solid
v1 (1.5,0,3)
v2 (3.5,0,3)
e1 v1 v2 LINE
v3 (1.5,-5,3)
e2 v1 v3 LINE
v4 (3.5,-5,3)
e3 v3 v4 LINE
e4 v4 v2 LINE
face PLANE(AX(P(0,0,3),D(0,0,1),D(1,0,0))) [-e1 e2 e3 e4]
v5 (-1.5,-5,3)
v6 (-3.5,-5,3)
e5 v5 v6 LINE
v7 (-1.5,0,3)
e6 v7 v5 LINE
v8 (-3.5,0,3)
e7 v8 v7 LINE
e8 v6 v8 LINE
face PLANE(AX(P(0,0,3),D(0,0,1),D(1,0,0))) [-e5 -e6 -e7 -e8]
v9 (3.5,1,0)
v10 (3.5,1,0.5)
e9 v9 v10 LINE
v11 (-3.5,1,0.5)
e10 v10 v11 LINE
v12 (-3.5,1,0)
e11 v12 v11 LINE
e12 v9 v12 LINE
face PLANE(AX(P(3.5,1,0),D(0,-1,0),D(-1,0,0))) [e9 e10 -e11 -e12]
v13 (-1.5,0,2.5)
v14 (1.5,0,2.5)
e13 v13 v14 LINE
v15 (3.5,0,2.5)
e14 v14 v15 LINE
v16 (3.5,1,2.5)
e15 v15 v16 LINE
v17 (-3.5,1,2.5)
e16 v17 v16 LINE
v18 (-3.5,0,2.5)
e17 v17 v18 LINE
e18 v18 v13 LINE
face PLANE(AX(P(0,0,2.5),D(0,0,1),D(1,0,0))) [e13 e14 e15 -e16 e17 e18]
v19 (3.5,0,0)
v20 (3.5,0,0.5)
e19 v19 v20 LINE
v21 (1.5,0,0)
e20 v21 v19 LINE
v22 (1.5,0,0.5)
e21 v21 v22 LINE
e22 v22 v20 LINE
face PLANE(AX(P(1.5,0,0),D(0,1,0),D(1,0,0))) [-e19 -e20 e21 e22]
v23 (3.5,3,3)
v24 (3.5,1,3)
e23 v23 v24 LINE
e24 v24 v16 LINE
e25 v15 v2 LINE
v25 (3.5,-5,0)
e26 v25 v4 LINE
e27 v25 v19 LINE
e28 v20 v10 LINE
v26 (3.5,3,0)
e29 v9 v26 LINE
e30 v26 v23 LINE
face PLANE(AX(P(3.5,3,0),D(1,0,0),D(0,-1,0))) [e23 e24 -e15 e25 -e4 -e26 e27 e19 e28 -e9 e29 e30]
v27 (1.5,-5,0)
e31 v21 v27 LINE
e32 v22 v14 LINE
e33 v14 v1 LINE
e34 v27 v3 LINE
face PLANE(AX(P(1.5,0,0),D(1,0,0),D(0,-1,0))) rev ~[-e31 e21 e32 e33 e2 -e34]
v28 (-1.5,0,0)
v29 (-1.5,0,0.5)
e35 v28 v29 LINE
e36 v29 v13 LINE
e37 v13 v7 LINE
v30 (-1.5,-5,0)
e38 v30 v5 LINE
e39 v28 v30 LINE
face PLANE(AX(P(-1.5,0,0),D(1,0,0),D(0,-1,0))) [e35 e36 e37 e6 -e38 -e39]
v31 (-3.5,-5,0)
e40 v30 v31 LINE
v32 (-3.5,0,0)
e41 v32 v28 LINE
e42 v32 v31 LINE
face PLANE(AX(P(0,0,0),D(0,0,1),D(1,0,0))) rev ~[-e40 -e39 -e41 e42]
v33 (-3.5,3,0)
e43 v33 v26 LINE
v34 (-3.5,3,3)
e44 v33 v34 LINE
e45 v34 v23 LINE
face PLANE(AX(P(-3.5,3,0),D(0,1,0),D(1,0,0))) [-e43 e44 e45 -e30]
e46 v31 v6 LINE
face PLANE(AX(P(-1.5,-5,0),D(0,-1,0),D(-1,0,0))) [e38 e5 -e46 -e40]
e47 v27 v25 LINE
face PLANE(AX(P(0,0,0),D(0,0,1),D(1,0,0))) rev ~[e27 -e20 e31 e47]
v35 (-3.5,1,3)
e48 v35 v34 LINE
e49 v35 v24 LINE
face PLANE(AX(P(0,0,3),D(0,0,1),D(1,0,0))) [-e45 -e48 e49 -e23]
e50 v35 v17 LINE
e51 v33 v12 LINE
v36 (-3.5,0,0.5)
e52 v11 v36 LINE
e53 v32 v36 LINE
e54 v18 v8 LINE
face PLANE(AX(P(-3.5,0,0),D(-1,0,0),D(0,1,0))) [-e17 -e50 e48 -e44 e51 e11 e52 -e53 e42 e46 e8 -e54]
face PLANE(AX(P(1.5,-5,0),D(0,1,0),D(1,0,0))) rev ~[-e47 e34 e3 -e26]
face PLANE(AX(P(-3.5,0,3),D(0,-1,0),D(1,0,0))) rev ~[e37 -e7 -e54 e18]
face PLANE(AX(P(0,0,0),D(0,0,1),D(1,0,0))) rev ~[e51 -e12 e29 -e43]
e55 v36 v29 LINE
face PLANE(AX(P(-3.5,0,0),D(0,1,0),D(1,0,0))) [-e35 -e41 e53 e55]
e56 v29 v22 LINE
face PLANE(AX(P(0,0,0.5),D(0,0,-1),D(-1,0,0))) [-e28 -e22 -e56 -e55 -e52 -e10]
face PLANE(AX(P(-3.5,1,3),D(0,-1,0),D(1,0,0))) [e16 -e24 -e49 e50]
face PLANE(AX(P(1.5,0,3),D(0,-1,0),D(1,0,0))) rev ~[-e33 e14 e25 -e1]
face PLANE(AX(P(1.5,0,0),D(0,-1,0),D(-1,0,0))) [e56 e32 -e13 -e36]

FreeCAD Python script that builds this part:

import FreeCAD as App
import Part
import Sketcher
from FreeCAD import Vector

doc = App.newDocument("Part")
params = doc.addObject("Spreadsheet::Sheet", "Params")
for row, (alias, value) in enumerate([
    ("sketch1_width", "7 mm"),
    ("sketch1_width2", "2 mm"),
    ("sketch1_height", "5 mm"),
    ("pad1_length", "3 mm"),
    ("sketch2_height", "1 mm"),
    ("sketch2_width", "7 mm"),
    ("pocket1_length", "0.5 mm"),
    ("sketch3_height", "1 mm"),
    ("sketch3_width", "7 mm"),
    ("pocket2_length", "0.5 mm"),
], start=1):
    params.set(f"A{row}", alias)
    params.set(f"B{row}", "=" + value)
    params.setAlias(f"B{row}", alias)

body = doc.addObject("PartDesign::Body", "Body")

# Sketch on XY plane
sketch1 = body.newObject("Sketcher::SketchObject", "Sketch")
sketch1.AttachmentSupport = (doc.getObject("XY_Plane"), [""])
sketch1.MapMode = "FlatFace"
sketch1.addGeometry([
    Part.LineSegment(Vector(3.5, 3, 0), Vector(-3.5, 3, 0)),  # 0
    Part.LineSegment(Vector(-3.5, 3, 0), Vector(-3.5, -5, 0)),  # 1
    Part.LineSegment(Vector(-3.5, -5, 0), Vector(-1.5, -5, 0)),  # 2
    Part.LineSegment(Vector(-1.5, -5, 0), Vector(-1.5, 0, 0)),  # 3
    Part.LineSegment(Vector(-1.5, 0, 0), Vector(1.5, 0, 0)),  # 4
    Part.LineSegment(Vector(1.5, 0, 0), Vector(1.5, -5, 0)),  # 5
    Part.LineSegment(Vector(1.5, -5, 0), Vector(3.5, -5, 0)),  # 6
    Part.LineSegment(Vector(3.5, -5, 0), Vector(3.5, 3, 0)),  # 7
], False)
sketch1.addConstraint([
    Sketcher.Constraint("Coincident", 0, 2, 1, 1),
    Sketcher.Constraint("Coincident", 1, 2, 2, 1),
    Sketcher.Constraint("Coincident", 2, 2, 3, 1),
    Sketcher.Constraint("Coincident", 3, 2, 4, 1),
    Sketcher.Constraint("Coincident", 4, 2, 5, 1),
    Sketcher.Constraint("Coincident", 5, 2, 6, 1),
    Sketcher.Constraint("Coincident", 6, 2, 7, 1),
    Sketcher.Constraint("Coincident", 7, 2, 0, 1),
    Sketcher.Constraint("Horizontal", 0),
    Sketcher.Constraint("Vertical", 1),
    Sketcher.Constraint("Horizontal", 2),
    Sketcher.Constraint("Vertical", 3),
    Sketcher.Constraint("Horizontal", 4),
    Sketcher.Constraint("Vertical", 5),
    Sketcher.Constraint("Horizontal", 6),
    Sketcher.Constraint("Vertical", 7),
    Sketcher.Constraint("Symmetric", 3, 2, 4, 2, -1, 1),
    Sketcher.Constraint("Symmetric", 1, 2, 6, 2, -2),
    Sketcher.Constraint("DistanceX", 0, 2, 0, 1, 7.0),
    Sketcher.Constraint("DistanceX", 2, 1, 2, 2, 2.0),
    Sketcher.Constraint("DistanceY", 3, 1, 3, 2, 5.0),
    Sketcher.Constraint("DistanceY", -1, 1, 0, 2, 3.0),
])
sketch1.setExpression("Constraints[18]", "Params.sketch1_width")
sketch1.setExpression("Constraints[19]", "Params.sketch1_width2")
sketch1.setExpression("Constraints[20]", "Params.sketch1_height")
pad1 = body.newObject("PartDesign::Pad", "Pad")
pad1.Profile = sketch1
pad1.setExpression("Length", "Params.pad1_length")

# Sketch on XY plane
sketch2 = body.newObject("Sketcher::SketchObject", "Sketch001")
sketch2.AttachmentSupport = (doc.getObject("XY_Plane"), [""])
sketch2.MapMode = "FlatFace"
sketch2.AttachmentOffset = App.Placement(Vector(0, 0, 3), App.Rotation())
sketch2.addGeometry([
    Part.LineSegment(Vector(-3.5, 0, 0), Vector(3.5, 0, 0)),
    Part.LineSegment(Vector(3.5, 0, 0), Vector(3.5, 1, 0)),
    Part.LineSegment(Vector(3.5, 1, 0), Vector(-3.5, 1, 0)),
    Part.LineSegment(Vector(-3.5, 1, 0), Vector(-3.5, 0, 0)),
], False)
sketch2.addConstraint([
    Sketcher.Constraint("Coincident", 0, 2, 1, 1),
    Sketcher.Constraint("Coincident", 1, 2, 2, 1),
    Sketcher.Constraint("Coincident", 2, 2, 3, 1),
    Sketcher.Constraint("Coincident", 3, 2, 0, 1),
    Sketcher.Constraint("Horizontal", 0),
    Sketcher.Constraint("Vertical", 1),
    Sketcher.Constraint("Horizontal", 2),
    Sketcher.Constraint("Vertical", 3),
    Sketcher.Constraint("Symmetric", 0, 2, 3, 2, -1, 1),
    Sketcher.Constraint("DistanceY", 1, 1, 1, 2, 1.0),
    Sketcher.Constraint("DistanceX", 0, 1, 0, 2, 7.0),
])
sketch2.setExpression("Constraints[9]", "Params.sketch2_height")
sketch2.setExpression("Constraints[10]", "Params.sketch2_width")
pocket1 = body.newObject("PartDesign::Pocket", "Pocket")
pocket1.Profile = sketch2
pocket1.setExpression("Length", "Params.pocket1_length")

# Sketch on XY plane
sketch3 = body.newObject("Sketcher::SketchObject", "Sketch002")
sketch3.AttachmentSupport = (doc.getObject("XY_Plane"), [""])
sketch3.MapMode = "FlatFace"
sketch3.addGeometry([
    Part.LineSegment(Vector(3.5, 0, 0), Vector(-3.5, 0, 0)),
    Part.LineSegment(Vector(-3.5, 0, 0), Vector(-3.5, 1, 0)),
    Part.LineSegment(Vector(-3.5, 1, 0), Vector(3.5, 1, 0)),
    Part.LineSegment(Vector(3.5, 1, 0), Vector(3.5, 0, 0)),
], False)
sketch3.addConstraint([
    Sketcher.Constraint("Coincident", 0, 2, 1, 1),
    Sketcher.Constraint("Coincident", 1, 2, 2, 1),
    Sketcher.Constraint("Coincident", 2, 2, 3, 1),
    Sketcher.Constraint("Coincident", 3, 2, 0, 1),
    Sketcher.Constraint("Horizontal", 0),
    Sketcher.Constraint("Vertical", 1),
    Sketcher.Constraint("Horizontal", 2),
    Sketcher.Constraint("Vertical", 3),
    Sketcher.Constraint("Symmetric", 0, 2, 3, 2, -1, 1),
    Sketcher.Constraint("DistanceY", 1, 1, 1, 2, 1.0),
    Sketcher.Constraint("DistanceX", 0, 2, 0, 1, 7.0),
])
sketch3.setExpression("Constraints[9]", "Params.sketch3_height")
sketch3.setExpression("Constraints[10]", "Params.sketch3_width")
pocket2 = body.newObject("PartDesign::Pocket", "Pocket001")
pocket2.Profile = sketch3
pocket2.setExpression("Length", "Params.pocket2_length")
pocket2.Reversed = True

doc.recompute()
